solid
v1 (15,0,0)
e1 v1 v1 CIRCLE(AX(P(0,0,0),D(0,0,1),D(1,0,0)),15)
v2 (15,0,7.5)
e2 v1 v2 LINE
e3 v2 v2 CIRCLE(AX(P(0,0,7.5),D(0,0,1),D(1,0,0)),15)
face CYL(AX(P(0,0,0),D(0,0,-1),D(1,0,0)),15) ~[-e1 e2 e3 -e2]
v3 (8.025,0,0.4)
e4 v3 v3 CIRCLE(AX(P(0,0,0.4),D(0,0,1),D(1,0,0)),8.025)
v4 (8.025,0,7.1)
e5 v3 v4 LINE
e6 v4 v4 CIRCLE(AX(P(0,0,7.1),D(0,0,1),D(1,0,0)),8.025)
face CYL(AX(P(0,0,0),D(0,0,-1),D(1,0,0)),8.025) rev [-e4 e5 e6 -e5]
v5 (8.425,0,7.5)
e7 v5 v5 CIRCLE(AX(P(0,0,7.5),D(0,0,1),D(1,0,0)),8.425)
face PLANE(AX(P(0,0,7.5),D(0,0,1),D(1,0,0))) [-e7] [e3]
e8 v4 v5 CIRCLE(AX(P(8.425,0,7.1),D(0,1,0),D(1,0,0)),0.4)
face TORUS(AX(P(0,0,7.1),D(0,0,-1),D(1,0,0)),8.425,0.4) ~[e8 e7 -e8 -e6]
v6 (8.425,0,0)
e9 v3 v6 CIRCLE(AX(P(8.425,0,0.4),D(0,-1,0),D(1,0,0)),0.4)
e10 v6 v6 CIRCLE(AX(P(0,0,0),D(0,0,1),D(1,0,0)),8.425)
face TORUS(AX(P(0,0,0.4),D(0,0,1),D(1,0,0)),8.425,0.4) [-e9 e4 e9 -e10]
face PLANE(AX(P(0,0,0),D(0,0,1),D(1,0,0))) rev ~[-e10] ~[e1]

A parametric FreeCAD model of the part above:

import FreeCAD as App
import Part
import Sketcher

V = App.Vector
Q = App.Units.Quantity


def edges_at(feature, points):
    """Names of the edges that pass closest to the given points."""
    edges = feature.Shape.Edges
    near = lambda p: min(range(len(edges)), key=lambda i: edges[i].distToShape(Part.Vertex(*p))[0])
    return sorted({f"Edge{near(p) + 1}" for p in points})

doc = App.newDocument("Part")
body = doc.addObject("PartDesign::Body", "Body")

sketch1 = doc.addObject("Sketcher::SketchObject", "Sketch")
body.addObject(sketch1)
sketch1.AttachmentSupport = (doc.XY_Plane, [""])
sketch1.MapMode = "FlatFace"
sketch1.addGeometry(Part.Circle(V(0, 0, 0), V(0, 0, 1), 15), False)
sketch1.addGeometry(Part.Circle(V(0, 0, 0), V(0, 0, 1), 8), False)
sketch1.addConstraint(Sketcher.Constraint("Coincident", 0, 3, -1, 1))
sketch1.addConstraint(Sketcher.Constraint("Coincident", 1, 3, -1, 1))
sketch1.addConstraint(Sketcher.Constraint("Diameter", 0, Q("30 mm")))
sketch1.addConstraint(Sketcher.Constraint("Diameter", 1, Q("16.05 mm")))
pad1 = doc.addObject("PartDesign::Pad", "Pad")
body.addObject(pad1)
pad1.Profile = sketch1
pad1.Length = 7.5
doc.recompute()

fillet = doc.addObject("PartDesign::Fillet", "Fillet")
body.addObject(fillet)
fillet.Base = (pad1, edges_at(pad1, [(-8.025, 0, 7.5), (-8.025, 0, 0)]))
fillet.Radius = 0.4

doc.recompute()
